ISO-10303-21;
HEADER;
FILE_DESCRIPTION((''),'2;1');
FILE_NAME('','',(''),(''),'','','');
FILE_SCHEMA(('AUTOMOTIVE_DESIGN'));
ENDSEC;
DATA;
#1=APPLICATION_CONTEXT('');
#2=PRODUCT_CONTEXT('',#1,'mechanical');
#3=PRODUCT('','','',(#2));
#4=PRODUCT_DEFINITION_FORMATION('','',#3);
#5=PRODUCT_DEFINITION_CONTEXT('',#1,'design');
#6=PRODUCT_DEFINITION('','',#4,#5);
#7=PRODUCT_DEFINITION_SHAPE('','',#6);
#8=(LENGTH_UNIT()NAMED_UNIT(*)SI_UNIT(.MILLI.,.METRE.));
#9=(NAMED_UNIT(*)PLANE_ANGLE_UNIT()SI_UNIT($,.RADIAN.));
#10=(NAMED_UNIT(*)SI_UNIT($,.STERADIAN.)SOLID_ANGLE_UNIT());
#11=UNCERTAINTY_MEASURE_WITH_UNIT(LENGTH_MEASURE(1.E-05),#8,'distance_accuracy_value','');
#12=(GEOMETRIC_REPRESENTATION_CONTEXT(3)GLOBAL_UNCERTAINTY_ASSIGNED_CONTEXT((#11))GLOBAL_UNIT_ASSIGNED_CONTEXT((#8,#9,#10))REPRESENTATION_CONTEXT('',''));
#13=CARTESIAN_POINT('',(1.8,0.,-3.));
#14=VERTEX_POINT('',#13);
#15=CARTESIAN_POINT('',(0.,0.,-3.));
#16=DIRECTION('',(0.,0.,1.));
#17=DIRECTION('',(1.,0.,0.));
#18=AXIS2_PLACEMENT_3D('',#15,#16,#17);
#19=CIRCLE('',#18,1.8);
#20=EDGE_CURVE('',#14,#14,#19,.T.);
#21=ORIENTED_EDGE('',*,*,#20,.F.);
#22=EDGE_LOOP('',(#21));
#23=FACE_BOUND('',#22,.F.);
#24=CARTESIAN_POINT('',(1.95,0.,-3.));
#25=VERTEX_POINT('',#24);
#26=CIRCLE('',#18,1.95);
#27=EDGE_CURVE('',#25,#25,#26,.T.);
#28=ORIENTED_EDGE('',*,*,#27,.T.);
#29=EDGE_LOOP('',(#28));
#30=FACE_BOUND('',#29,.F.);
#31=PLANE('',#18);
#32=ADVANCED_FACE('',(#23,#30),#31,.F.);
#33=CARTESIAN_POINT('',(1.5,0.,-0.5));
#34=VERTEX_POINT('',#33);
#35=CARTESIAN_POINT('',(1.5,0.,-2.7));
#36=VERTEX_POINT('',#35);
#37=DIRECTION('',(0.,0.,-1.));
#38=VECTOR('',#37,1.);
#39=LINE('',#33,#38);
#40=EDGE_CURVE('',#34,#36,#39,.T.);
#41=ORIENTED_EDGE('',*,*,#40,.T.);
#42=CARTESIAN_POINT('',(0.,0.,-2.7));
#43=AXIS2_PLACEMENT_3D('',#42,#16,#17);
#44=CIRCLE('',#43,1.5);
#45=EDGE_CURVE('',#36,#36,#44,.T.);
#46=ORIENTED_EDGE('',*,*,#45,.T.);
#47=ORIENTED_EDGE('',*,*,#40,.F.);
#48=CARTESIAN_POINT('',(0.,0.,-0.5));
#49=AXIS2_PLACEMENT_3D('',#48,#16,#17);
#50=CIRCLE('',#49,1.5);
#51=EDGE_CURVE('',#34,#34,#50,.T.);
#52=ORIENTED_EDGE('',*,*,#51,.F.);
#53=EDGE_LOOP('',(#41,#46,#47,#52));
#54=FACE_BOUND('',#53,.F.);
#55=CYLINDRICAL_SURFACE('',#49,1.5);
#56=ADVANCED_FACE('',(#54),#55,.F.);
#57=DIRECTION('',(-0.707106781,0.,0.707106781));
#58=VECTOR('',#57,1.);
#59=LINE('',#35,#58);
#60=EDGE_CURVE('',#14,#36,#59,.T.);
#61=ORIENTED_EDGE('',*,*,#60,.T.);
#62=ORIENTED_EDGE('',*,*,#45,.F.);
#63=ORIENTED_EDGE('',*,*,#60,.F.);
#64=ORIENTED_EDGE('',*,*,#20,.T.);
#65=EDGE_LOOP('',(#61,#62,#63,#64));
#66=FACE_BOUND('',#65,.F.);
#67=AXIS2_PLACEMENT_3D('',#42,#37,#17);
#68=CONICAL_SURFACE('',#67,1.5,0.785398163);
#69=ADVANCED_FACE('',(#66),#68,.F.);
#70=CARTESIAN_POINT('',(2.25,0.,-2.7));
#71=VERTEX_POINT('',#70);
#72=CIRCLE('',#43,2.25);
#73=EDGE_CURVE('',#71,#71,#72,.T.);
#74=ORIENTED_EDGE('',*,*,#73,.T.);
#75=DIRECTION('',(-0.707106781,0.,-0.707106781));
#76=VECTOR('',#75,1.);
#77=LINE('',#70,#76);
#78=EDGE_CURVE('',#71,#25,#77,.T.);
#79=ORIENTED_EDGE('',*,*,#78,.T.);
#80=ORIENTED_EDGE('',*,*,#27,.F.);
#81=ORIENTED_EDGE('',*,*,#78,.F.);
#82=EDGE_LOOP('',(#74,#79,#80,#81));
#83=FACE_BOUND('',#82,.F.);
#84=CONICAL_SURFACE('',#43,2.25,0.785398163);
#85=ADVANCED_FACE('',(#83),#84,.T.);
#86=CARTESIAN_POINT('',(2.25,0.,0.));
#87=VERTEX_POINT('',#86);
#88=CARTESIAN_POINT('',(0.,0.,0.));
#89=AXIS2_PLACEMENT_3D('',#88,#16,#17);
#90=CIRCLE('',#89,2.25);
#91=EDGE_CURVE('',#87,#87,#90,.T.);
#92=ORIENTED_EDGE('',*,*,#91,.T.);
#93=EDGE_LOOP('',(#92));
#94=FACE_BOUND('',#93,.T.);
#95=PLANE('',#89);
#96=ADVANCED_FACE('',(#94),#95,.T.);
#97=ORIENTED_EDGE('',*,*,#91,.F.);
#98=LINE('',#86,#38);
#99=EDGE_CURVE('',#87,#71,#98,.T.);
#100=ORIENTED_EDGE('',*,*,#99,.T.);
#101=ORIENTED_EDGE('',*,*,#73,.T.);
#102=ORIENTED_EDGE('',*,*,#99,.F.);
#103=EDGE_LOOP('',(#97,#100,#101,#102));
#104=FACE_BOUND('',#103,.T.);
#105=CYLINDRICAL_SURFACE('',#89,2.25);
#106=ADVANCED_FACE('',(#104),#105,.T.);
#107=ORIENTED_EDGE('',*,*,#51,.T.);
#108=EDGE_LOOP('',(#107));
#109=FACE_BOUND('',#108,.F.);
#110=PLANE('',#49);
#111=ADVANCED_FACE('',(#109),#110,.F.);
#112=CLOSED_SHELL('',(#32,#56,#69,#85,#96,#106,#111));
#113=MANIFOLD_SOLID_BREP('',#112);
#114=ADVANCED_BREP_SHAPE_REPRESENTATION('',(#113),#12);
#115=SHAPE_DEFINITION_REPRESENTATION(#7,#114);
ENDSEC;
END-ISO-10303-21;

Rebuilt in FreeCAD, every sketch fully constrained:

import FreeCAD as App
import Part
import Sketcher


def edges_at(feature, points):
    """Names of the edges that pass closest to the given points."""
    edges = feature.Shape.Edges
    near = lambda p: min(range(len(edges)), key=lambda i: edges[i].distToShape(Part.Vertex(*p))[0])
    return sorted({f"Edge{near(p) + 1}" for p in points})

doc = App.newDocument("Part")
params = doc.addObject("Spreadsheet::Sheet", "Params")
for row, (alias, value) in enumerate([
    ("sketch1_diameter", "4.5 mm"),
    ("pad1_length", "3 mm"),
    ("sketch2_diameter", "3 mm"),
    ("pocket1_length", "2.5 mm"),
    ("chamfer_size", "0.3 mm"),
], start=1):
    params.set(f"A{row}", alias)
    params.set(f"B{row}", "=" + value)
    params.setAlias(f"B{row}", alias)

body = doc.addObject("PartDesign::Body", "Body")

# Sketch on XY plane
sketch1 = body.newObject("Sketcher::SketchObject", "Sketch")
sketch1.AttachmentSupport = (doc.getObject("XY_Plane"), [""])
sketch1.MapMode = "FlatFace"
sketch1.addGeometry(Part.Circle(App.Vector(0, 0, 0), App.Vector(0, 0, 1), 2.25), False)
sketch1.addConstraint([
    Sketcher.Constraint("Coincident", 0, 3, -1, 1),
    Sketcher.Constraint("Diameter", 0, 4.5),
])
sketch1.setExpression("Constraints[1]", "Params.sketch1_diameter")
pad1 = body.newObject("PartDesign::Pad", "Pad")
pad1.Profile = sketch1
pad1.setExpression("Length", "Params.pad1_length")
pad1.Reversed = True

# Sketch on XY plane
sketch2 = body.newObject("Sketcher::SketchObject", "Sketch001")
sketch2.AttachmentSupport = (doc.getObject("XY_Plane"), [""])
sketch2.MapMode = "FlatFace"
sketch2.AttachmentOffset = App.Placement(App.Vector(0, 0, -0.5), App.Rotation())
sketch2.addGeometry(Part.Circle(App.Vector(0, 0, 0), App.Vector(0, 0, 1), 1.5), False)
sketch2.addConstraint([
    Sketcher.Constraint("Coincident", 0, 3, -1, 1),
    Sketcher.Constraint("Diameter", 0, 3.0),
])
sketch2.setExpression("Constraints[1]", "Params.sketch2_diameter")
pocket1 = body.newObject("PartDesign::Pocket", "Pocket")
pocket1.Profile = sketch2
pocket1.setExpression("Length", "Params.pocket1_length")
doc.recompute()

chamfer = body.newObject("PartDesign::Chamfer", "Chamfer")
chamfer.Base = (pocket1, edges_at(pocket1, [(-2.25, 0, -3), (-1.5, 0, -3)]))
chamfer.setExpression("Size", "Params.chamfer_size")

doc.recompute()
